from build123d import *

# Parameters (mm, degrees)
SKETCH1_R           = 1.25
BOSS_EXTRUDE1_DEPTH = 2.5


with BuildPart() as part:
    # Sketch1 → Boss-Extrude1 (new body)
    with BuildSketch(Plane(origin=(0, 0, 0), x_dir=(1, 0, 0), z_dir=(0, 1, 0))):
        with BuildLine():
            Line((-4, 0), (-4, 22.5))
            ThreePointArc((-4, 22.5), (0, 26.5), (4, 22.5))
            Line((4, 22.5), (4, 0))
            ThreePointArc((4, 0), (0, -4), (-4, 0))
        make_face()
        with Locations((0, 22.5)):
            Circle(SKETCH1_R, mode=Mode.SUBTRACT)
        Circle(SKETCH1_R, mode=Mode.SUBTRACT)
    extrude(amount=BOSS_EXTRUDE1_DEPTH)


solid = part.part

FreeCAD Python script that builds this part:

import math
import FreeCAD as App
import Part
import Sketcher

V = App.Vector
Q = App.Units.Quantity

doc = App.newDocument("Part")
params = doc.addObject("Spreadsheet::Sheet", "Params")
for row, (alias, value) in enumerate([
    ("sketch1_radius", "4 mm"),
    ("sketch1_diameter", "2.5 mm"),
    ("sketch1_height", "22.5 mm"),
    ("pad1_length", "2.5 mm"),
], start=1):
    params.set(f"A{row}", alias)
    params.set(f"B{row}", "=" + value)
    params.setAlias(f"B{row}", alias)

body = doc.addObject("PartDesign::Body", "Body")

# Sketch on XZ plane
sketch1 = body.newObject("Sketcher::SketchObject", "Sketch")
sketch1.AttachmentSupport = (doc.getObject("XZ_Plane"), [""])
sketch1.MapMode = "FlatFace"
sketch1.addGeometry([
    Part.LineSegment(V(-4, -22.5, 0), V(-4, 0, 0)),  # 0
    Part.ArcOfCircle(Part.Circle(V(0, 0, 0), V(0, 0, 1), 4), math.radians(0), math.radians(180)),  # 1
    Part.LineSegment(V(4, 0, 0), V(4, -22.5, 0)),  # 2
    Part.ArcOfCircle(Part.Circle(V(0, -22.5, 0), V(0, 0, 1), 4), math.radians(180), math.radians(360)),  # 3
    Part.Circle(V(0, 0, 0), V(0, 0, 1), 1.2),  # 4
    Part.Circle(V(0, -22.5, 0), V(0, 0, 1), 1.2),  # 5
], False)
sketch1.addConstraint([
    Sketcher.Constraint("Tangent", 0, 2, 1, 2),
    Sketcher.Constraint("Tangent", 1, 1, 2, 1),
    Sketcher.Constraint("Tangent", 2, 2, 3, 2),
    Sketcher.Constraint("Tangent", 3, 1, 0, 1),
    Sketcher.Constraint("Vertical", 0),
    Sketcher.Constraint("Vertical", 2),
    Sketcher.Constraint("Coincident", 1, 3, -1, 1),
    Sketcher.Constraint("Coincident", 4, 3, -1, 1),
    Sketcher.Constraint("Coincident", 5, 3, 3, 3),
    Sketcher.Constraint("Equal", 4, 5),
    Sketcher.Constraint("Radius", 1, Q("4 mm")),
    Sketcher.Constraint("Diameter", 4, Q("2.5 mm")),
    Sketcher.Constraint("DistanceY", 0, 1, 0, 2, Q("22.5 mm")),
])
sketch1.setExpression("Constraints[10]", "Params.sketch1_radius")
sketch1.setExpression("Constraints[11]", "Params.sketch1_diameter")
sketch1.setExpression("Constraints[12]", "Params.sketch1_height")
pad1 = body.newObject("PartDesign::Pad", "Pad")
pad1.Profile = sketch1
pad1.setExpression("Length", "Params.pad1_length")
pad1.Reversed = True

doc.recompute()
